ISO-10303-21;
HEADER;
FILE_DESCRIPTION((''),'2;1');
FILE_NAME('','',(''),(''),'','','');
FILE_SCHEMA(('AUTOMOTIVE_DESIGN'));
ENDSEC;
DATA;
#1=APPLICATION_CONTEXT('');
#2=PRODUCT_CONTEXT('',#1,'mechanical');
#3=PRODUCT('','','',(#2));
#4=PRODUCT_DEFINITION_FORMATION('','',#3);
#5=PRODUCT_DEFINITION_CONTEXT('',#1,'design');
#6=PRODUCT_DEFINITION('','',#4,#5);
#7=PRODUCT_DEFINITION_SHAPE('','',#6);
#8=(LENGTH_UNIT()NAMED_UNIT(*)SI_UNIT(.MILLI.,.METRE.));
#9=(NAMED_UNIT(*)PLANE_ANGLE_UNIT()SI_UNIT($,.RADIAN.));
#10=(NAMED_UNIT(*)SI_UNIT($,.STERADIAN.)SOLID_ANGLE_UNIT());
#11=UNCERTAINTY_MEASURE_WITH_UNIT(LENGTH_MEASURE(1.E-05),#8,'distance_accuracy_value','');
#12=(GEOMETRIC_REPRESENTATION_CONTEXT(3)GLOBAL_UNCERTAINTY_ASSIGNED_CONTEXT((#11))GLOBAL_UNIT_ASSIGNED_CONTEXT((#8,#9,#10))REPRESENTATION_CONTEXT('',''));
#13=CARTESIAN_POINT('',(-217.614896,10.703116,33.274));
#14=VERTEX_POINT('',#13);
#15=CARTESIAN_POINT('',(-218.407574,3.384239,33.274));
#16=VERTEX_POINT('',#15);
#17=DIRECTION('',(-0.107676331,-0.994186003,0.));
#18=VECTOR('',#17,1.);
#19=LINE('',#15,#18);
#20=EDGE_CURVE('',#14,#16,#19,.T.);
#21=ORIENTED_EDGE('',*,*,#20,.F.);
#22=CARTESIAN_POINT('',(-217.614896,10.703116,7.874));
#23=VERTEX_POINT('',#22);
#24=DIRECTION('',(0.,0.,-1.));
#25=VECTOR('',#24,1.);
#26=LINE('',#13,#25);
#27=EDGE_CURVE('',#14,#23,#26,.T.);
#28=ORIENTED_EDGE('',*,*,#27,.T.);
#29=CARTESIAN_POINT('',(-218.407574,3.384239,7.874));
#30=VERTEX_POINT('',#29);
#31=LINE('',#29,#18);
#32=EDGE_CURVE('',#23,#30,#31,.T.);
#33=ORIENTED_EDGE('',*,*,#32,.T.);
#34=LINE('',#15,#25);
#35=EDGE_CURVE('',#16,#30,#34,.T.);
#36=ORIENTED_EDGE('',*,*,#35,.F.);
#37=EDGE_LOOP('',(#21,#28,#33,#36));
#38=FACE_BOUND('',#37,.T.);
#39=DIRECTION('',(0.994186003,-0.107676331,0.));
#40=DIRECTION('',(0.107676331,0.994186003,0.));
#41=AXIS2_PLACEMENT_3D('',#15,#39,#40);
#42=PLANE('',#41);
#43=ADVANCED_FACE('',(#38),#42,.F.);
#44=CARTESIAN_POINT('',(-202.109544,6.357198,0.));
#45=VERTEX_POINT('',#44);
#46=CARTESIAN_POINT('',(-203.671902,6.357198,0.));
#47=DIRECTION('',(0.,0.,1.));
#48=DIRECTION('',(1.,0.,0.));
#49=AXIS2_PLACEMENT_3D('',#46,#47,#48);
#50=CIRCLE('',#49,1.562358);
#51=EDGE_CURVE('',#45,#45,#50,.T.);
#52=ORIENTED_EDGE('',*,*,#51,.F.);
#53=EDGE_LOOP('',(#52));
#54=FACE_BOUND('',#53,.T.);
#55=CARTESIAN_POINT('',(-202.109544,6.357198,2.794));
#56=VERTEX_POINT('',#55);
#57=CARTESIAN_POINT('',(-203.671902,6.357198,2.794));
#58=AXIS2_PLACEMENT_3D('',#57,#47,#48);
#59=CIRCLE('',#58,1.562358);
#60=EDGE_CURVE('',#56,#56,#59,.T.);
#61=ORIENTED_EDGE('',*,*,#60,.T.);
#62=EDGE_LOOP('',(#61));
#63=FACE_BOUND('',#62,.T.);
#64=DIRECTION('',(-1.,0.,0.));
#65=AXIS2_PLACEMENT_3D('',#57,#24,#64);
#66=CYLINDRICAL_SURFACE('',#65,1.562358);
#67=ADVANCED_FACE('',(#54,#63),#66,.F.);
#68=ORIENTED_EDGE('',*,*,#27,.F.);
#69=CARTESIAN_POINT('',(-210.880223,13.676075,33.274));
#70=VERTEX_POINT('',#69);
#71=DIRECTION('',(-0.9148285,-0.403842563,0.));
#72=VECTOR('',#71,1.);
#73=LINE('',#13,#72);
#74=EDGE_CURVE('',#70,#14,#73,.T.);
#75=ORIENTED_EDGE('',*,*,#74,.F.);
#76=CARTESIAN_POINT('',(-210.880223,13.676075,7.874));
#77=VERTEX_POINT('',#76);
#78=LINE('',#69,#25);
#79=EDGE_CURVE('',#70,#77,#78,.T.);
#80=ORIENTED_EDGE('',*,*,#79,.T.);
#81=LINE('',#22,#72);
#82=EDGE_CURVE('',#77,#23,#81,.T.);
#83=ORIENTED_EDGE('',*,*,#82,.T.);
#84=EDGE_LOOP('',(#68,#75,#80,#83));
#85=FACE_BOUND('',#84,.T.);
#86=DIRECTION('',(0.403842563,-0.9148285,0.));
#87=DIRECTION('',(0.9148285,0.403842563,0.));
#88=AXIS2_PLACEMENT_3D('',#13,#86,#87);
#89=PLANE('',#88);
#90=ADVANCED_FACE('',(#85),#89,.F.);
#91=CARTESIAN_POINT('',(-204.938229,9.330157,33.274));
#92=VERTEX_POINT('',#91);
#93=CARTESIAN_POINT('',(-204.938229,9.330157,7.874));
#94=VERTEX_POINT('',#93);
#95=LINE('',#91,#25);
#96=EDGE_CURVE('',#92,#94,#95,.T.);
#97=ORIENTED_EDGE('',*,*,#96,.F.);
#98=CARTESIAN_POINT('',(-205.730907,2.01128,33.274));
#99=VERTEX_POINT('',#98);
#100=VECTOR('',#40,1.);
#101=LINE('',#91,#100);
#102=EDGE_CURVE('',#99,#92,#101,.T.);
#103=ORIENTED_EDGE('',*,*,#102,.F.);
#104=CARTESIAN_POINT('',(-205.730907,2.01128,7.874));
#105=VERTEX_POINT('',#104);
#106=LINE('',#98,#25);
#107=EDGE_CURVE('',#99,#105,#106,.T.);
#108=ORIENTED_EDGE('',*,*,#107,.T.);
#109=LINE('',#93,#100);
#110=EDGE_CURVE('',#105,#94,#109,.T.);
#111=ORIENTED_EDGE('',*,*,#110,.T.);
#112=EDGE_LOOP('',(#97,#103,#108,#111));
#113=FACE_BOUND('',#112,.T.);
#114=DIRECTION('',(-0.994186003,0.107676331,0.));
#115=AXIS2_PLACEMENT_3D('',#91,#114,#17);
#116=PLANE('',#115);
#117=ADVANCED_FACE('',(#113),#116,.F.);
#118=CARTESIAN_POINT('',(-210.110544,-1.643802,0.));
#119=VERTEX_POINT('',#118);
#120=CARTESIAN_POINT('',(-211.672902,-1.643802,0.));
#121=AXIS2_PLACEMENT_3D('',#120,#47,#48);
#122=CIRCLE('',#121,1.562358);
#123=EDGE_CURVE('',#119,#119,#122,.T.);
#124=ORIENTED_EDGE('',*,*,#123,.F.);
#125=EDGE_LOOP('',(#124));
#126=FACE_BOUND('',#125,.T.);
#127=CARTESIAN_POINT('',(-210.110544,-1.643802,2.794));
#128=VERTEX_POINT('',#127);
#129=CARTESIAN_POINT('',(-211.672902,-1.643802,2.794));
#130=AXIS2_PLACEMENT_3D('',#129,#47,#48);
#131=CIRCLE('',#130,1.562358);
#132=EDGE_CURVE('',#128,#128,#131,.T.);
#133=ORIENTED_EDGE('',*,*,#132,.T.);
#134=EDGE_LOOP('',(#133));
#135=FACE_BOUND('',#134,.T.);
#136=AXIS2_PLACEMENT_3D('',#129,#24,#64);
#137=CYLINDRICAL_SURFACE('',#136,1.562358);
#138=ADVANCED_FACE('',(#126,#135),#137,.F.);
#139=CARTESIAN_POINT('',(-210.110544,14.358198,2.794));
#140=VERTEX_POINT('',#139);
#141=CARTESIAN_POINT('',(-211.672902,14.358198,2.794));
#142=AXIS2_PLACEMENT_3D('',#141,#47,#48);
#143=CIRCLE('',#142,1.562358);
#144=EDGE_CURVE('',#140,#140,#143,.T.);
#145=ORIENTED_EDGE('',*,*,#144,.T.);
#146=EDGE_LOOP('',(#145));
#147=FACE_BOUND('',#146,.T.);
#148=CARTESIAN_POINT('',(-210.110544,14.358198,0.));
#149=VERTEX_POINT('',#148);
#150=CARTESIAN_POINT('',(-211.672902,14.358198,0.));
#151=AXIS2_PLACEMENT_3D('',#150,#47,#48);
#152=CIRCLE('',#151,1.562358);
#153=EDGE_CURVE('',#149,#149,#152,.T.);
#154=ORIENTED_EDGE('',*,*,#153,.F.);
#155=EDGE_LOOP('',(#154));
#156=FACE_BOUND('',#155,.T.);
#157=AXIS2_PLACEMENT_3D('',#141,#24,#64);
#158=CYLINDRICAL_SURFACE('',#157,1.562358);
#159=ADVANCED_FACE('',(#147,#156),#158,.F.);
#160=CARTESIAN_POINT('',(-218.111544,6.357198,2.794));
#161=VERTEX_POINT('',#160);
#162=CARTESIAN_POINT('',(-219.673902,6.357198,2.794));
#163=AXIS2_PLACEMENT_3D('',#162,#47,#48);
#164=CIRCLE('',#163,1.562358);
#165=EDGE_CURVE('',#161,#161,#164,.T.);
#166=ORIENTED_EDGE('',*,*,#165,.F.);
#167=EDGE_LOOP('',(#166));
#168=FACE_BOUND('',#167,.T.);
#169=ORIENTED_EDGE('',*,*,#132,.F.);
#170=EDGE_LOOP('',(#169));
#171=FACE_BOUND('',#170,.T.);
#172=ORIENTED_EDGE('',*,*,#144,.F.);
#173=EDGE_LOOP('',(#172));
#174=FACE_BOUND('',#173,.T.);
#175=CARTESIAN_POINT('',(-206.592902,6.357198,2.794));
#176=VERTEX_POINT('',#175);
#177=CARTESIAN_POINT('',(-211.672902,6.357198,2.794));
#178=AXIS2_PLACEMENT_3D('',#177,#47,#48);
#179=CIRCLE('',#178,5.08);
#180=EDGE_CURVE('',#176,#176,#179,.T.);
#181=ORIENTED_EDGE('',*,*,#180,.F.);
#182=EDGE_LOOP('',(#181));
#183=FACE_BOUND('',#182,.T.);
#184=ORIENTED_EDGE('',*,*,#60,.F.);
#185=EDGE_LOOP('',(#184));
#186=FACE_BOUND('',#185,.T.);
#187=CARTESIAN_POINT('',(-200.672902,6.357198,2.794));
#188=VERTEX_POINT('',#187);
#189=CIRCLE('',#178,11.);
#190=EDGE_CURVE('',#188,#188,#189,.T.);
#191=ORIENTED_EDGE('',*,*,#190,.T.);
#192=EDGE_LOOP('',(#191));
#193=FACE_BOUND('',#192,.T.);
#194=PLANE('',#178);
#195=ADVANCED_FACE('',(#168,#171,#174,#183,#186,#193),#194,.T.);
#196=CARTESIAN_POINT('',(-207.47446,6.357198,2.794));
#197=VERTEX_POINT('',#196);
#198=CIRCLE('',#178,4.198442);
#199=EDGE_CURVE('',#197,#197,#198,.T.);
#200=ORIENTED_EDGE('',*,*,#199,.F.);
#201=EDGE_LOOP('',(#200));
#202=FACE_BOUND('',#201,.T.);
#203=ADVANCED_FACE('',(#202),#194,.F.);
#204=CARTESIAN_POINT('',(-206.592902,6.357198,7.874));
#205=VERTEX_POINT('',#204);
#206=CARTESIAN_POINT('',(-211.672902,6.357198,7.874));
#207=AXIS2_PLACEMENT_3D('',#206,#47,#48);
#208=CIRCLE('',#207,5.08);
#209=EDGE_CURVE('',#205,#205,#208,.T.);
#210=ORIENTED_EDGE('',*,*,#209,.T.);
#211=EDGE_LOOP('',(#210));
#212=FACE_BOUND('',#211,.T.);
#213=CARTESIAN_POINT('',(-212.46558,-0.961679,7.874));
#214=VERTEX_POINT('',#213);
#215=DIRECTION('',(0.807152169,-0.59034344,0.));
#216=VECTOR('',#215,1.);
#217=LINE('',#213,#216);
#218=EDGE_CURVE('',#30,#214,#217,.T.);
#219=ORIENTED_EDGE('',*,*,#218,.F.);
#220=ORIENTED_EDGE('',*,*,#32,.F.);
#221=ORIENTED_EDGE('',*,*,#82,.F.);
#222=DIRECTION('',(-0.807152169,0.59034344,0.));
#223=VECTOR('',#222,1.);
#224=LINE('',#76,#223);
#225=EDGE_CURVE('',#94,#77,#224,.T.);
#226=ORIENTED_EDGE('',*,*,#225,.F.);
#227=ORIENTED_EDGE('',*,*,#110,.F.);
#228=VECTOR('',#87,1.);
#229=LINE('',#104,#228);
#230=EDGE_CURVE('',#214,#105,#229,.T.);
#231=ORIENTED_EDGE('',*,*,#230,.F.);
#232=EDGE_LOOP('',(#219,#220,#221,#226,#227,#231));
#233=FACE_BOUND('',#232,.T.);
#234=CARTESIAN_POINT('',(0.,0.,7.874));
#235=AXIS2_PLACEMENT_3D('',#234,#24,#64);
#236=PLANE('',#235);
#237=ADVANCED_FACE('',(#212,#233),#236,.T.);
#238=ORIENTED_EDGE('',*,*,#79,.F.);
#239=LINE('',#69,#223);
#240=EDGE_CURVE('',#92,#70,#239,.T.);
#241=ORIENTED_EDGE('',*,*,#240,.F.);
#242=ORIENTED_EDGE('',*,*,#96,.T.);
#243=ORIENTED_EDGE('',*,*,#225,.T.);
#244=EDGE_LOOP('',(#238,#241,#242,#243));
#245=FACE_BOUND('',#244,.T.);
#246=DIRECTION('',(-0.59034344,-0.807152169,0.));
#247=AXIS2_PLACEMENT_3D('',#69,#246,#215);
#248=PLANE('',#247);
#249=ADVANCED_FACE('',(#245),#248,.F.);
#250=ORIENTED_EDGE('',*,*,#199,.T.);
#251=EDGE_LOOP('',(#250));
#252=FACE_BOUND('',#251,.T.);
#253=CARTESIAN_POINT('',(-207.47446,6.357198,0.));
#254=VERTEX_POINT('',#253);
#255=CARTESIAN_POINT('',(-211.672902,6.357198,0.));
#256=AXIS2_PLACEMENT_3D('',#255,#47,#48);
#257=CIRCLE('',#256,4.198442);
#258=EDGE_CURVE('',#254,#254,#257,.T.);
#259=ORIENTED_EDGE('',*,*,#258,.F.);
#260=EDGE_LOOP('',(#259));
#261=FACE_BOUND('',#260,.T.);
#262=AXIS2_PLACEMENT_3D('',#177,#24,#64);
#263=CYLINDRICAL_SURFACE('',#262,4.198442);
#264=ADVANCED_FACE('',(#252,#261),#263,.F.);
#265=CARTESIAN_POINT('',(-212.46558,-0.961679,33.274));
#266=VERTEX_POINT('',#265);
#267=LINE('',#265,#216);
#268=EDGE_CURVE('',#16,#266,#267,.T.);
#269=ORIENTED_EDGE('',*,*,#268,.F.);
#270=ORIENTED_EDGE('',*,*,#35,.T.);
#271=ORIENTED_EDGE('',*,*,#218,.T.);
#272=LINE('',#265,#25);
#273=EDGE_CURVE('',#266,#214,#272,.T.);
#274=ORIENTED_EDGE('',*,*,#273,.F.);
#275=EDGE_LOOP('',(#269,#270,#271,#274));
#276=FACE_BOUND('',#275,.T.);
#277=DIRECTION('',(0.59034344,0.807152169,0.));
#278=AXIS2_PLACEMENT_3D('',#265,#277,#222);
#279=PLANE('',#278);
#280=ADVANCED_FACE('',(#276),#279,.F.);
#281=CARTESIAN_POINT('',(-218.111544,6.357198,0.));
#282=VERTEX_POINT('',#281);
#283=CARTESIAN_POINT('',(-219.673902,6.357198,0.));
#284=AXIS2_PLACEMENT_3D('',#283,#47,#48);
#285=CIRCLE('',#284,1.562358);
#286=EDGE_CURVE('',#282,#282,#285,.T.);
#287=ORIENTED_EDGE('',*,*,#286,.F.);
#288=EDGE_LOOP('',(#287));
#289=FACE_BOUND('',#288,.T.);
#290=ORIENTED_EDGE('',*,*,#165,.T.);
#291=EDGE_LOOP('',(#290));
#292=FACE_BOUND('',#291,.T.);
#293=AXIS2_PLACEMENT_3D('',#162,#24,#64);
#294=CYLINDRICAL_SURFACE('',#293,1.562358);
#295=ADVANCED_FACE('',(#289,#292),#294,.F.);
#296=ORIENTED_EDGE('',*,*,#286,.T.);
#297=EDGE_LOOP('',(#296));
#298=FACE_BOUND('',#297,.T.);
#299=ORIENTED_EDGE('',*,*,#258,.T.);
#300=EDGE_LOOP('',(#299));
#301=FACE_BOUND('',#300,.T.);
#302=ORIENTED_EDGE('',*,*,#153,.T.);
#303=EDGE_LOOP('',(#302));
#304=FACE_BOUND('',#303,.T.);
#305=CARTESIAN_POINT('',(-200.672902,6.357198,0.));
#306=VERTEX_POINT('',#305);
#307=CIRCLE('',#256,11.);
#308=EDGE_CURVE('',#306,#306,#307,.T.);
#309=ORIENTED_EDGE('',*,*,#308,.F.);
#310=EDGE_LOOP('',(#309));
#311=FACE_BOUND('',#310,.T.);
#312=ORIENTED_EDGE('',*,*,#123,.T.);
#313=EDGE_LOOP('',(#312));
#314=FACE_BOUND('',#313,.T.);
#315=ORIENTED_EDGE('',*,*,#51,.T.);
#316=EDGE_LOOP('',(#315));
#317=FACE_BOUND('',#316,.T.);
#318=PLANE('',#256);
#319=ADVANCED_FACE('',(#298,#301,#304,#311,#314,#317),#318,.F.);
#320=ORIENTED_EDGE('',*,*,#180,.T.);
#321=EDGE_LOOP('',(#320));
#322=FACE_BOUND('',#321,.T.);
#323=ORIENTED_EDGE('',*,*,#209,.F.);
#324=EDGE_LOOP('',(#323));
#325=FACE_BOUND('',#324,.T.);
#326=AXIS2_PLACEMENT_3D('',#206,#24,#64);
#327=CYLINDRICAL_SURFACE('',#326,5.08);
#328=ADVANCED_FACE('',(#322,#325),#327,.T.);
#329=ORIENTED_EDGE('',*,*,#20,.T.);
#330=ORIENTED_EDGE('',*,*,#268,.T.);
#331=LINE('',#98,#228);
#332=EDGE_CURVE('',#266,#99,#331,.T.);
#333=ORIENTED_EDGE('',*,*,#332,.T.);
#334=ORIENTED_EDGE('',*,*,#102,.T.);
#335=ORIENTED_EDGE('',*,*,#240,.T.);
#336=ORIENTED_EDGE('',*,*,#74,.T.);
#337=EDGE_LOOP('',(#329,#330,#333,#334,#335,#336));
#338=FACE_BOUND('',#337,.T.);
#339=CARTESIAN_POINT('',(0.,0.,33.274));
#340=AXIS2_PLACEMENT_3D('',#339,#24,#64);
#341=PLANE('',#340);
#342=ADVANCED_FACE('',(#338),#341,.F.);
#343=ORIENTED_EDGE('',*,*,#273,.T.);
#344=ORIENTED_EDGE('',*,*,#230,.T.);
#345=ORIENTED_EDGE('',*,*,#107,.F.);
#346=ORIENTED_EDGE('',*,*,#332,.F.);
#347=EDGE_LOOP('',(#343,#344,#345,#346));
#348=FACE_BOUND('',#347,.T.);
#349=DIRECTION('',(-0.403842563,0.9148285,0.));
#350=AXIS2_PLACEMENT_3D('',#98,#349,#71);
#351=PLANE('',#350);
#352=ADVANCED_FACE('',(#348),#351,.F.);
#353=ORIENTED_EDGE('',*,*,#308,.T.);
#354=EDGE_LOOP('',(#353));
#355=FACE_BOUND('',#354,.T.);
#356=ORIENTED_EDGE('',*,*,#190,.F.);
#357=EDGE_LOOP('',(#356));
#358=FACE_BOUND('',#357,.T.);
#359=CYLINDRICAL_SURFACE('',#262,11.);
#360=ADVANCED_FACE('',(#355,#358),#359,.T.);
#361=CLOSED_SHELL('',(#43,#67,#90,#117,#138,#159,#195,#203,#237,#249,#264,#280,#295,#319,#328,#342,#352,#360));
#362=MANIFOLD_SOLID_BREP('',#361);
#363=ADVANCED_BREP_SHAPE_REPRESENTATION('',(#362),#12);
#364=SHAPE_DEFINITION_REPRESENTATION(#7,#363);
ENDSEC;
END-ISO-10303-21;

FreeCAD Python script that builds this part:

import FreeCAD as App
import Part
import Sketcher

V = App.Vector
Q = App.Units.Quantity

doc = App.newDocument("Part")
body = doc.addObject("PartDesign::Body", "Body")

sketch1 = body.newObject("Sketcher::SketchObject", "Sketch")
sketch1.AttachmentSupport = (doc.getObject("XY_Plane"), [""])
sketch1.MapMode = "FlatFace"
sketch1.addGeometry(Part.Circle(V(-211.672902, 6.357198, 0), V(0, 0, 1), 11), False)
sketch1.addGeometry(Part.Circle(V(-211.672902, -1.643802, 0), V(0, 0, 1), 1.562358), False)
sketch1.addGeometry(Part.Circle(V(-219.673902, 6.357198, 0), V(0, 0, 1), 1.562358), False)
sketch1.addGeometry(Part.Circle(V(-211.672902, 6.357198, 0), V(0, 0, 1), 4.198442), False)
sketch1.addGeometry(Part.Circle(V(-203.671902, 6.357198, 0), V(0, 0, 1), 1.562358), False)
sketch1.addGeometry(Part.Circle(V(-211.672902, 14.358198, 0), V(0, 0, 1), 1.562358), False)
sketch1.addConstraint(Sketcher.Constraint("Coincident", 3, 3, 0, 3))
sketch1.addConstraint(Sketcher.Constraint("Equal", 1, 2))
sketch1.addConstraint(Sketcher.Constraint("Equal", 2, 4))
sketch1.addConstraint(Sketcher.Constraint("Equal", 4, 5))
sketch1.addConstraint(Sketcher.Constraint("Horizontal", 0, 3, 2, 3))
sketch1.addConstraint(Sketcher.Constraint("Horizontal", 3, 3, 4, 3))
sketch1.addConstraint(Sketcher.Constraint("Vertical", 0, 3, 1, 3))
sketch1.addConstraint(Sketcher.Constraint("Vertical", 3, 3, 5, 3))
sketch1.addConstraint(Sketcher.Constraint("Diameter", 0, 22.0))
sketch1.addConstraint(Sketcher.Constraint("DistanceX", 2, 3, 4, 3, Q("0.63 in")))
sketch1.addConstraint(Sketcher.Constraint("DistanceY", 1, 3, 5, 3, Q("0.63 in")))
sketch1.addConstraint(Sketcher.Constraint("DistanceY", 1, 3, 0, 3, Q("0.315 in")))
sketch1.addConstraint(Sketcher.Constraint("DistanceX", 2, 3, 0, 3, Q("0.315 in")))
sketch1.addConstraint(Sketcher.Constraint("Diameter", 1, 3.124716))
sketch1.addConstraint(Sketcher.Constraint("Diameter", 3, 8.396884))
sketch1.addConstraint(Sketcher.Constraint("DistanceX", 0, 3, -1, 1, 211.672902))
sketch1.addConstraint(Sketcher.Constraint("DistanceY", -1, 1, 0, 3, 6.357198))
pad1 = body.newObject("PartDesign::Pad", "Pad")
pad1.Profile = sketch1
pad1.Length = Q("0.11 in")

sketch2 = body.newObject("Sketcher::SketchObject", "Sketch001")
sketch2.AttachmentSupport = (doc.getObject("XY_Plane"), [""])
sketch2.MapMode = "FlatFace"
sketch2.AttachmentOffset = App.Placement(V(0, 0, 0.11 * 25.4), App.Rotation())
sketch2.addGeometry(Part.Circle(V(-211.672902, 6.357198, 0), V(0, 0, 1), 5.08), False)
sketch2.addConstraint(Sketcher.Constraint("Diameter", 0, Q("0.4 in")))
sketch2.addConstraint(Sketcher.Constraint("DistanceX", 0, 3, -1, 1, 211.672902))
sketch2.addConstraint(Sketcher.Constraint("DistanceY", -1, 1, 0, 3, 6.357198))
pad2 = body.newObject("PartDesign::Pad", "Pad001")
pad2.Profile = sketch2
pad2.Length = Q("0.2 in")

sketch3 = body.newObject("Sketcher::SketchObject", "Sketch002")
sketch3.AttachmentSupport = (doc.getObject("XY_Plane"), [""])
sketch3.MapMode = "FlatFace"
sketch3.AttachmentOffset = App.Placement(V(0, 0, 0.31 * 25.4), App.Rotation())
sketch3.addGeometry(Part.LineSegment(V(-210.880223, 13.676075, 0), V(-217.614896, 10.703116, 0)), False)
sketch3.addGeometry(Part.LineSegment(V(-217.614896, 10.703116, 0), V(-218.407574, 3.384239, 0)), False)
sketch3.addGeometry(Part.LineSegment(V(-218.407574, 3.384239, 0), V(-212.46558, -0.961679, 0)), False)
sketch3.addGeometry(Part.LineSegment(V(-212.46558, -0.961679, 0), V(-205.730907, 2.01128, 0)), False)
sketch3.addGeometry(Part.LineSegment(V(-205.730907, 2.01128, 0), V(-204.938229, 9.330157, 0)), False)
sketch3.addGeometry(Part.LineSegment(V(-204.938229, 9.330157, 0), V(-210.880223, 13.676075, 0)), False)
sketch3.addConstraint(Sketcher.Constraint("Coincident", 0, 2, 1, 1))
sketch3.addConstraint(Sketcher.Constraint("Coincident", 1, 2, 2, 1))
sketch3.addConstraint(Sketcher.Constraint("Coincident", 2, 2, 3, 1))
sketch3.addConstraint(Sketcher.Constraint("Coincident", 3, 2, 4, 1))
sketch3.addConstraint(Sketcher.Constraint("Coincident", 4, 2, 5, 1))
sketch3.addConstraint(Sketcher.Constraint("Coincident", 5, 2, 0, 1))
sketch3.addConstraint(Sketcher.Constraint("Parallel", 0, 3))
sketch3.addConstraint(Sketcher.Constraint("Parallel", 1, 4))
sketch3.addConstraint(Sketcher.Constraint("Parallel", 2, 5))
sketch3.addConstraint(Sketcher.Constraint("Equal", 0, 1))
sketch3.addConstraint(Sketcher.Constraint("Equal", 1, 2))
sketch3.addConstraint(Sketcher.Constraint("Equal", 2, 3))
sketch3.addConstraint(Sketcher.Constraint("DistanceY", -1, 1, 1, 2, 3.384239))
sketch3.addConstraint(Sketcher.Constraint("DistanceX", 2, 2, -1, 1, 212.46558))
sketch3.addConstraint(Sketcher.Constraint("DistanceY", 2, 2, -1, 1, 0.961679))
sketch3.addConstraint(Sketcher.Constraint("DistanceY", -1, 1, 3, 2, 2.01128))
sketch3.addConstraint(Sketcher.Constraint("DistanceX", 4, 2, -1, 1, 204.938229))
sketch3.addConstraint(Sketcher.Constraint("DistanceX", 1, 2, 0, 2, 0.792678))
pad3 = body.newObject("PartDesign::Pad", "Pad002")
pad3.Profile = sketch3
pad3.Length = Q("1 in")

doc.recompute()
